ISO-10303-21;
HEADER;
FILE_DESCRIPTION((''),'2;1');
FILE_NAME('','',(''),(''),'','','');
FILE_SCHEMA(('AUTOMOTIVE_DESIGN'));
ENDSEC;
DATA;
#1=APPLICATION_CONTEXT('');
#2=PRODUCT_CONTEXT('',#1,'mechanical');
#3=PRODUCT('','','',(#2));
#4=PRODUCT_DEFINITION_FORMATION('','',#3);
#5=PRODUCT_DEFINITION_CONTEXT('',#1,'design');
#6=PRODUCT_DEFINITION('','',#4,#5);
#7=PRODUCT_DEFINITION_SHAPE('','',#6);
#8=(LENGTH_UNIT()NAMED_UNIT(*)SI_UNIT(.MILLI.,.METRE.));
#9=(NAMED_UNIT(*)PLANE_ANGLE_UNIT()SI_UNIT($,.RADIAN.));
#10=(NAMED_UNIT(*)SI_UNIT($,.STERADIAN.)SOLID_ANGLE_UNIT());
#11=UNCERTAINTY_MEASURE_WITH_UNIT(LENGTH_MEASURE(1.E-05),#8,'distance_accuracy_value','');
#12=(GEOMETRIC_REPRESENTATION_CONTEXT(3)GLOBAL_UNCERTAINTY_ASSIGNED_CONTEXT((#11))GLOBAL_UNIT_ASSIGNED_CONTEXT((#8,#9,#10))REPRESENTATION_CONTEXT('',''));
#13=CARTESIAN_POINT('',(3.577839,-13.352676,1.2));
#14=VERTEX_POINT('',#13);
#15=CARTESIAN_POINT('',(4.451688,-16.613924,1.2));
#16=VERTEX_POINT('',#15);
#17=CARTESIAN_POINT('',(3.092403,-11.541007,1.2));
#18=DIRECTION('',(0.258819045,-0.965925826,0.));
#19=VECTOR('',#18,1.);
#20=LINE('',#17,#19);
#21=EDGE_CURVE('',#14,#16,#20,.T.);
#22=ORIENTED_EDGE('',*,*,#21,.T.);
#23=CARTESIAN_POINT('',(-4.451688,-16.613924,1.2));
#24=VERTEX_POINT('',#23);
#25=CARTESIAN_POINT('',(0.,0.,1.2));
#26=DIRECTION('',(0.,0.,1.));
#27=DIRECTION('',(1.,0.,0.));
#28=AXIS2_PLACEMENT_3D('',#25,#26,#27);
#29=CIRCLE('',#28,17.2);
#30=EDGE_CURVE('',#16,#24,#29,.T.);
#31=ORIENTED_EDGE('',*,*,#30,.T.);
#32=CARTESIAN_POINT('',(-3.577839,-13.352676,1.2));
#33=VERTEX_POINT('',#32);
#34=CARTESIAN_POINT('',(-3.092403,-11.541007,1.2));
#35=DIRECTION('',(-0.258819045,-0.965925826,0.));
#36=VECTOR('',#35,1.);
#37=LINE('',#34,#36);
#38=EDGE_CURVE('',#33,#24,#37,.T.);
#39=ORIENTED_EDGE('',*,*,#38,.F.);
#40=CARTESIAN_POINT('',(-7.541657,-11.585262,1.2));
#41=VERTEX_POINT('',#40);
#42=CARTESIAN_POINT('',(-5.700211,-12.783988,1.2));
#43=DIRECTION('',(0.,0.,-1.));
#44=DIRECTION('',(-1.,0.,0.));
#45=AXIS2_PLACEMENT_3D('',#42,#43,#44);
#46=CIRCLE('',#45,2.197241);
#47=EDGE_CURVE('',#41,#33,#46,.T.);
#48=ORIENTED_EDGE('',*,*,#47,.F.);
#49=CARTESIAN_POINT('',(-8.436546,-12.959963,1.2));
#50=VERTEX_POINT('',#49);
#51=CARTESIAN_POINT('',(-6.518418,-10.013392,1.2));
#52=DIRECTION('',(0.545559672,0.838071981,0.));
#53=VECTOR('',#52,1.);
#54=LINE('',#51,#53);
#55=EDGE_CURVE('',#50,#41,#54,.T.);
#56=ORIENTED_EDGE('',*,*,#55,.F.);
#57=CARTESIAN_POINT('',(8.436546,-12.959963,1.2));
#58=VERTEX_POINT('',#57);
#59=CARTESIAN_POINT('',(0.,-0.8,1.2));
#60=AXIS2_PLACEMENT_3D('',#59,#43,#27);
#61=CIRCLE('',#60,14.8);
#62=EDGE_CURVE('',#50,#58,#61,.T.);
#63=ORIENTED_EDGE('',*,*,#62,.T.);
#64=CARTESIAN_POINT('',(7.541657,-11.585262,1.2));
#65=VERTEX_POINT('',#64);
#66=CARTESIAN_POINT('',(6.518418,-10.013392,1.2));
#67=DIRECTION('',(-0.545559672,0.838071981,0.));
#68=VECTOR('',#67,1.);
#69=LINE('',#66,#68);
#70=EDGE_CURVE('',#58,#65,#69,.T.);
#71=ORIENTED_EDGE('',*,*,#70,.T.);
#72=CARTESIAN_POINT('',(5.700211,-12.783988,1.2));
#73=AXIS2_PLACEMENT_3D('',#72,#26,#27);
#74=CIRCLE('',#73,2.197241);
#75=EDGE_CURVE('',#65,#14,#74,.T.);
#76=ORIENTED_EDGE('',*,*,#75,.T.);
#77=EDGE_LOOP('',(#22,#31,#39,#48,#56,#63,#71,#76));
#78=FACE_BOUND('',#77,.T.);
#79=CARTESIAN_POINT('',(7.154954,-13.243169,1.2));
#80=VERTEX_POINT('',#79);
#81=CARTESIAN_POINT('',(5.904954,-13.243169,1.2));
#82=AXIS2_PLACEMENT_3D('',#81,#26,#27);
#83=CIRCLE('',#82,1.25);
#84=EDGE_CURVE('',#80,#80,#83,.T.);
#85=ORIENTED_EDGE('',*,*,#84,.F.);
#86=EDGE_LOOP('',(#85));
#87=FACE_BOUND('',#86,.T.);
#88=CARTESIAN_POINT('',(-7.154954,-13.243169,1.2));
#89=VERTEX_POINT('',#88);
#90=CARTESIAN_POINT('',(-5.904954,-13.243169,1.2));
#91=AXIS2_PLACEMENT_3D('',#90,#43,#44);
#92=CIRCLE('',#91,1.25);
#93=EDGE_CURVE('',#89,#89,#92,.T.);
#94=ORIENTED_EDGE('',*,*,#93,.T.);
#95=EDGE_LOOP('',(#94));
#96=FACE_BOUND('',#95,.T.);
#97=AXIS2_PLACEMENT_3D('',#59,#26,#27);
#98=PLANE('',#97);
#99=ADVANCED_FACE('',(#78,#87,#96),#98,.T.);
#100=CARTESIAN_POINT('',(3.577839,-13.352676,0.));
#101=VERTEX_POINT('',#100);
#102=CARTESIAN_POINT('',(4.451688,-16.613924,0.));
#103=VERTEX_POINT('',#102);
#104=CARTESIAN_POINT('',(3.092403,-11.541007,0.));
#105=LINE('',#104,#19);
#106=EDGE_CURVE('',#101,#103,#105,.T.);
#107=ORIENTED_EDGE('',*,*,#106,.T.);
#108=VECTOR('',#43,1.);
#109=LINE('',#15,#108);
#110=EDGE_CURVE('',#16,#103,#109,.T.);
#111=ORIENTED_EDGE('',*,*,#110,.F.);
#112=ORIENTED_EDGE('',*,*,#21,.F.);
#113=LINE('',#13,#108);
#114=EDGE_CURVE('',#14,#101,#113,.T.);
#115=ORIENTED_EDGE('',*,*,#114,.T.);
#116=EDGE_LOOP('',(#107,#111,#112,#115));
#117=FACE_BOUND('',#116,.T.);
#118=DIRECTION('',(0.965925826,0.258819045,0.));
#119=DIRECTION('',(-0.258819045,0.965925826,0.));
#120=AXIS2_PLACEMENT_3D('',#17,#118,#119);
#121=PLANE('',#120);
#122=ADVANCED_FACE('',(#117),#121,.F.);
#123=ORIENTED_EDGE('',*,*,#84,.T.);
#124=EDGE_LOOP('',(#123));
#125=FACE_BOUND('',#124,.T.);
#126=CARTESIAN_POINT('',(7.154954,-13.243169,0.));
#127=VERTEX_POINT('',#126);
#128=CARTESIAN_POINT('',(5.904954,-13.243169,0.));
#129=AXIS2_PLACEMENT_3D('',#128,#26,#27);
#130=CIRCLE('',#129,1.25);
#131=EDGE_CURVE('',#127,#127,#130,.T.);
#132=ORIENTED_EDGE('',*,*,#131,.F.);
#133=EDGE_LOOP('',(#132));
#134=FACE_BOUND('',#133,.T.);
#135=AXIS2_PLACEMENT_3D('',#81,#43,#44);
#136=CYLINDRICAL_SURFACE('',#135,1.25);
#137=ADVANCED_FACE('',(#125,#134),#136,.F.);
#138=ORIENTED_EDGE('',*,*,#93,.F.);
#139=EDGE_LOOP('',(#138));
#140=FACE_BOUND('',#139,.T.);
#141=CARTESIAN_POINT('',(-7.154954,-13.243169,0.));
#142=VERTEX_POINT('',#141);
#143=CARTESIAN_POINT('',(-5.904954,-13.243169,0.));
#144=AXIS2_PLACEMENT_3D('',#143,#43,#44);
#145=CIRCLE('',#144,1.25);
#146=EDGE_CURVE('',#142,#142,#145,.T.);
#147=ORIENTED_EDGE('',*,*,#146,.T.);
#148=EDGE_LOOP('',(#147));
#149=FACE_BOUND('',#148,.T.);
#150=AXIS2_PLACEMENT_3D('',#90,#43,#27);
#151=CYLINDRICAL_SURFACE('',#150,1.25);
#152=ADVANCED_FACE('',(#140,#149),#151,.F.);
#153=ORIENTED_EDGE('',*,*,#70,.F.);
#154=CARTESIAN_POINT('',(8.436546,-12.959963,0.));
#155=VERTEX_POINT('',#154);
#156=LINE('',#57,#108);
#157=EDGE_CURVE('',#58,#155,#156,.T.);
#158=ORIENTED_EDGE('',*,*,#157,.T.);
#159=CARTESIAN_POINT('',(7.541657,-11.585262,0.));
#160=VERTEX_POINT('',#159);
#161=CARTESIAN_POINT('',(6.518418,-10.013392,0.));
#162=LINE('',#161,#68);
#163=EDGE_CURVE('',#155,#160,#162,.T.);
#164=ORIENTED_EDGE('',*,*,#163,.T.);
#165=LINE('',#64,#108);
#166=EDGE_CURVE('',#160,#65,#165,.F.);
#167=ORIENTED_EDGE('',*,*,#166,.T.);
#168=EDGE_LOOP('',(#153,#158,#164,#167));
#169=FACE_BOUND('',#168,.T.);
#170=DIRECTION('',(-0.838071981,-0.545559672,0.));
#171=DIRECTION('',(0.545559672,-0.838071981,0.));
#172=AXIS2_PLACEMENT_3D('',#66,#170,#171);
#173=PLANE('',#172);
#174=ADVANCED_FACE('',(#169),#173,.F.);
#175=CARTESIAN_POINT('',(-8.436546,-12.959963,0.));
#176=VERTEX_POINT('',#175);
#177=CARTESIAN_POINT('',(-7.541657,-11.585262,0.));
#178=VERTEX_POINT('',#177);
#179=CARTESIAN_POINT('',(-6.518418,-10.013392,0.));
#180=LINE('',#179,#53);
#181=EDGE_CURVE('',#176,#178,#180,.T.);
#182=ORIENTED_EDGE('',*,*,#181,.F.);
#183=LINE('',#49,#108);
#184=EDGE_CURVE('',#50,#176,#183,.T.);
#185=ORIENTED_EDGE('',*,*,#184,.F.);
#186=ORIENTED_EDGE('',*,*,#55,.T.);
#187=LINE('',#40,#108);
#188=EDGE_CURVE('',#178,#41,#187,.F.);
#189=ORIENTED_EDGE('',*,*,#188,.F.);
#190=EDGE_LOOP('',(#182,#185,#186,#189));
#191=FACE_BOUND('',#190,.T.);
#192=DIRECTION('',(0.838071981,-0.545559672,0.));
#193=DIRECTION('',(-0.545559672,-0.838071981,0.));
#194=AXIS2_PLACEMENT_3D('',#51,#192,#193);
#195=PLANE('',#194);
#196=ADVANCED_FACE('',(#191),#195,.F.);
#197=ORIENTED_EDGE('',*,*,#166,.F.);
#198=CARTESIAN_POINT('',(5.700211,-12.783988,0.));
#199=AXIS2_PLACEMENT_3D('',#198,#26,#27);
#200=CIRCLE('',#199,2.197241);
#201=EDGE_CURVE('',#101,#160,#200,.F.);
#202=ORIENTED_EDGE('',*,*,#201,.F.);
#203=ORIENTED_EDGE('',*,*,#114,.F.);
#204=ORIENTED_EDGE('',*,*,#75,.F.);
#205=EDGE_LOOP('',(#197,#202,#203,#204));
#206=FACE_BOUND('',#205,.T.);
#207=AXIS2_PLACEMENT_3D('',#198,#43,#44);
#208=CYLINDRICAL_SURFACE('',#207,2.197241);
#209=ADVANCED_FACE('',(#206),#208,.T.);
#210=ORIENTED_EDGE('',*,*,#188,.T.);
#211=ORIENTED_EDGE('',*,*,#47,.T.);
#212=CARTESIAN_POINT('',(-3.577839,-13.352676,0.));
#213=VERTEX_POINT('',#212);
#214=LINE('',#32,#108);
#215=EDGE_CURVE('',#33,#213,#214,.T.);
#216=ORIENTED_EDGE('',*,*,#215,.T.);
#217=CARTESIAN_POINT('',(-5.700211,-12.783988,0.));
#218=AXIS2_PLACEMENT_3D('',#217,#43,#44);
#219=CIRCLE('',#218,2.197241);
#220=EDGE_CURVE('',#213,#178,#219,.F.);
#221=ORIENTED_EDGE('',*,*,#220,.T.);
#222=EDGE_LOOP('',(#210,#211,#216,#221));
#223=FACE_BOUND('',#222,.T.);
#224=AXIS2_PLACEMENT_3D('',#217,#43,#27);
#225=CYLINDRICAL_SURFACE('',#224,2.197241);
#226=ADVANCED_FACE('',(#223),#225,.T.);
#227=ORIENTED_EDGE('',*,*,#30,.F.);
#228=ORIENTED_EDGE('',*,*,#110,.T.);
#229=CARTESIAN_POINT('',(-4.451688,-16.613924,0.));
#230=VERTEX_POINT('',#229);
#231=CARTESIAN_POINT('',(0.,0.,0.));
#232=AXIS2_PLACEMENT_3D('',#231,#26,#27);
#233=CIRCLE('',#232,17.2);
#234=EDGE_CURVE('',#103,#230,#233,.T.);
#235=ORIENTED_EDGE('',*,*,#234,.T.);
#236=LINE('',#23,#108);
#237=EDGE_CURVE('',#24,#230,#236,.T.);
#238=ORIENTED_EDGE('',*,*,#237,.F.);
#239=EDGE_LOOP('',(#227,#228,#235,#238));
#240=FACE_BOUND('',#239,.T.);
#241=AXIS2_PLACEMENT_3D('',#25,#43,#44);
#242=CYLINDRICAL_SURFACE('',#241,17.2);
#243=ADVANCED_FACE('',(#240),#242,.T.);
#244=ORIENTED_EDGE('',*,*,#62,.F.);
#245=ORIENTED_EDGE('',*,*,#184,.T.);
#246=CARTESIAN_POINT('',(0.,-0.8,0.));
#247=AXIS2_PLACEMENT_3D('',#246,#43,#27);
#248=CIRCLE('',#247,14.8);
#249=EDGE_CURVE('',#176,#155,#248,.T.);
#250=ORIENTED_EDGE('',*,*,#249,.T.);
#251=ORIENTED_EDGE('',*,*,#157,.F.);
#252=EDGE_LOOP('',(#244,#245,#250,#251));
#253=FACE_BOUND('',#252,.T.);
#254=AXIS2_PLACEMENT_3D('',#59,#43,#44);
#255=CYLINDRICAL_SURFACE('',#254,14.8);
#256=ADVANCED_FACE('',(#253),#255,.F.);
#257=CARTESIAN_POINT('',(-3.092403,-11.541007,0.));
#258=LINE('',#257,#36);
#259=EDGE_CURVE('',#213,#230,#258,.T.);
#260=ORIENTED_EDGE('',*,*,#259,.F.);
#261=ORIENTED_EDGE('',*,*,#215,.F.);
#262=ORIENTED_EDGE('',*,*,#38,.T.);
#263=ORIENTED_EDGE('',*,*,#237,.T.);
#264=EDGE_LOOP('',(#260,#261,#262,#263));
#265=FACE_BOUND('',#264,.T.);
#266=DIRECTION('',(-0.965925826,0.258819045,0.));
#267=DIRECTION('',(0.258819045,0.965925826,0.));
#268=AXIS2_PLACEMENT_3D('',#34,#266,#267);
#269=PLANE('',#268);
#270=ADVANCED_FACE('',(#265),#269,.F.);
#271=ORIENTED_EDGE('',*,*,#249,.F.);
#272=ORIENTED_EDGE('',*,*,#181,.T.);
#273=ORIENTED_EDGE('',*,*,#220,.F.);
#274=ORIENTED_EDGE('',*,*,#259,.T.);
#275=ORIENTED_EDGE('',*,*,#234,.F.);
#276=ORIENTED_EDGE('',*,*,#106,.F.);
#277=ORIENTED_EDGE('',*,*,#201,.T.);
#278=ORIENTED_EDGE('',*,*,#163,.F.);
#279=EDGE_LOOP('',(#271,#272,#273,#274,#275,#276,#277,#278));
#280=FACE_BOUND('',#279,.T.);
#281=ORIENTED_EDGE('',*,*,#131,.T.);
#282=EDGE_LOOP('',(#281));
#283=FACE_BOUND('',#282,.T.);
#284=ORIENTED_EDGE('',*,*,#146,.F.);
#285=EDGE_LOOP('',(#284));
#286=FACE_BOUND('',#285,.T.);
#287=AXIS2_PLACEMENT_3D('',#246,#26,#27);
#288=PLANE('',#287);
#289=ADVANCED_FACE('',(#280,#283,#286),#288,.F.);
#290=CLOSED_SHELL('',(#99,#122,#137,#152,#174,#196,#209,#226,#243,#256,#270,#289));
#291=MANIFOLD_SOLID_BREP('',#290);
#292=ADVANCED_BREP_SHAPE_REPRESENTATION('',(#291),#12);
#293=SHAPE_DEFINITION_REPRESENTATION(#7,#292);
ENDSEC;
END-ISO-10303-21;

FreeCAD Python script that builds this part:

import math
import FreeCAD as App
import Part
import Sketcher
Q = App.Units.Quantity


def edges_at(feature, points):
    """Names of the edges that pass closest to the given points."""
    edges = feature.Shape.Edges
    near = lambda p: min(range(len(edges)), key=lambda i: edges[i].distToShape(Part.Vertex(*p))[0])
    return sorted({f"Edge{near(p) + 1}" for p in points})

doc = App.newDocument("Part")
body = doc.addObject("PartDesign::Body", "Body")

# Sketch on XY plane
sketch1 = body.newObject("Sketcher::SketchObject", "Sketch")
sketch1.AttachmentSupport = (doc.getObject("XY_Plane"), [""])
sketch1.MapMode = "FlatFace"
sketch1.addGeometry([
    Part.LineSegment(App.Vector(8.436546, -12.959963, 0), App.Vector(6.518418, -10.013392, 0)),  # 0
    Part.LineSegment(App.Vector(6.518418, -10.013392, 0), App.Vector(3.092403, -11.541007, 0)),  # 1
    Part.LineSegment(App.Vector(3.092403, -11.541007, 0), App.Vector(4.451688, -16.613924, 0)),  # 2
    Part.ArcOfCircle(Part.Circle(App.Vector(0, 0, 0), App.Vector(0, 0, 1), 17.2), math.radians(-75), math.radians(90)),  # 3
    Part.LineSegment(App.Vector(0, 17.2, 0), App.Vector(0, 14, 0)),  # 4
    Part.ArcOfCircle(Part.Circle(App.Vector(0, -0.8, 0), App.Vector(0, 0, 1), 14.8), math.radians(-55.247201), math.radians(90)),  # 5
    Part.Circle(App.Vector(5.904954, -13.243169, 0), App.Vector(0, 0, 1), 1.25),  # 6
], False)
sketch1.addConstraint([
    Sketcher.Constraint("Coincident", 0, 2, 1, 1),
    Sketcher.Constraint("Coincident", 1, 2, 2, 1),
    Sketcher.Constraint("Coincident", 2, 2, 3, 1),
    Sketcher.Constraint("Coincident", 3, 2, 4, 1),
    Sketcher.Constraint("Coincident", 4, 2, 5, 2),
    Sketcher.Constraint("Coincident", 5, 1, 0, 1),
    Sketcher.Constraint("Vertical", 4),
    Sketcher.Constraint("Coincident", 3, 3, -1, 1),
    Sketcher.Constraint("PointOnObject", 5, 3, -2),
    Sketcher.Constraint("PointOnObject", 3, 2, -2),
    Sketcher.Constraint("Diameter", 6, Q("2.5 mm")),
    Sketcher.Constraint("Radius", 3, Q("17.2 mm")),
    Sketcher.Constraint("Radius", 5, Q("14.8 mm")),
    Sketcher.Constraint("Angle", 2, Q("-75 deg")),
    Sketcher.Constraint("DistanceY", 4, 2, 4, 1, Q("3.2 mm")),
    Sketcher.Constraint("Distance", 0, Q("3.515891 mm")),
    Sketcher.Constraint("Distance", 2, Q("5.251871 mm")),
    Sketcher.Constraint("DistanceY", 6, 3, -1, 1, Q("13.243169 mm")),
    Sketcher.Constraint("DistanceX", 1, 2, 6, 3, Q("2.81255 mm")),
    Sketcher.Constraint("DistanceX", 2, 2, 0, 2, Q("2.06673 mm")),
    Sketcher.Constraint("DistanceY", 2, 2, 0, 2, Q("6.600532 mm")),
    Sketcher.Constraint("DistanceX", 0, 2, 5, 1, Q("1.918129 mm")),
])
pad1 = body.newObject("PartDesign::Pad", "Pad")
pad1.Profile = sketch1
pad1.Length = 1.2
doc.recompute()

fillet = body.newObject("PartDesign::Fillet", "Fillet")
fillet.Base = (pad1, edges_at(pad1, [(6.518, -10.013, 0.6), (3.092, -11.541, 0.6)]))
fillet.Radius = 2.197241
body2 = doc.addObject("PartDesign::Body", "Body001")
doc.recompute()

body2.BaseFeature = body
doc.recompute()

mirroring = doc.addObject("Part::Mirroring", "Mirroring")
mirroring.Source = body
mirroring.Base = App.Vector(0, 17.2, 1.2)
mirroring.Normal = App.Vector(1, 0, 0)
body3 = doc.addObject("PartDesign::Body", "Body002")
body3.BaseFeature = mirroring
boolean = body2.newObject("PartDesign::Boolean", "Boolean")
boolean.Type = "Fuse"
boolean.addObjects([body3])
doc.recompute()
mirroring.Visibility = False

doc.recompute()
